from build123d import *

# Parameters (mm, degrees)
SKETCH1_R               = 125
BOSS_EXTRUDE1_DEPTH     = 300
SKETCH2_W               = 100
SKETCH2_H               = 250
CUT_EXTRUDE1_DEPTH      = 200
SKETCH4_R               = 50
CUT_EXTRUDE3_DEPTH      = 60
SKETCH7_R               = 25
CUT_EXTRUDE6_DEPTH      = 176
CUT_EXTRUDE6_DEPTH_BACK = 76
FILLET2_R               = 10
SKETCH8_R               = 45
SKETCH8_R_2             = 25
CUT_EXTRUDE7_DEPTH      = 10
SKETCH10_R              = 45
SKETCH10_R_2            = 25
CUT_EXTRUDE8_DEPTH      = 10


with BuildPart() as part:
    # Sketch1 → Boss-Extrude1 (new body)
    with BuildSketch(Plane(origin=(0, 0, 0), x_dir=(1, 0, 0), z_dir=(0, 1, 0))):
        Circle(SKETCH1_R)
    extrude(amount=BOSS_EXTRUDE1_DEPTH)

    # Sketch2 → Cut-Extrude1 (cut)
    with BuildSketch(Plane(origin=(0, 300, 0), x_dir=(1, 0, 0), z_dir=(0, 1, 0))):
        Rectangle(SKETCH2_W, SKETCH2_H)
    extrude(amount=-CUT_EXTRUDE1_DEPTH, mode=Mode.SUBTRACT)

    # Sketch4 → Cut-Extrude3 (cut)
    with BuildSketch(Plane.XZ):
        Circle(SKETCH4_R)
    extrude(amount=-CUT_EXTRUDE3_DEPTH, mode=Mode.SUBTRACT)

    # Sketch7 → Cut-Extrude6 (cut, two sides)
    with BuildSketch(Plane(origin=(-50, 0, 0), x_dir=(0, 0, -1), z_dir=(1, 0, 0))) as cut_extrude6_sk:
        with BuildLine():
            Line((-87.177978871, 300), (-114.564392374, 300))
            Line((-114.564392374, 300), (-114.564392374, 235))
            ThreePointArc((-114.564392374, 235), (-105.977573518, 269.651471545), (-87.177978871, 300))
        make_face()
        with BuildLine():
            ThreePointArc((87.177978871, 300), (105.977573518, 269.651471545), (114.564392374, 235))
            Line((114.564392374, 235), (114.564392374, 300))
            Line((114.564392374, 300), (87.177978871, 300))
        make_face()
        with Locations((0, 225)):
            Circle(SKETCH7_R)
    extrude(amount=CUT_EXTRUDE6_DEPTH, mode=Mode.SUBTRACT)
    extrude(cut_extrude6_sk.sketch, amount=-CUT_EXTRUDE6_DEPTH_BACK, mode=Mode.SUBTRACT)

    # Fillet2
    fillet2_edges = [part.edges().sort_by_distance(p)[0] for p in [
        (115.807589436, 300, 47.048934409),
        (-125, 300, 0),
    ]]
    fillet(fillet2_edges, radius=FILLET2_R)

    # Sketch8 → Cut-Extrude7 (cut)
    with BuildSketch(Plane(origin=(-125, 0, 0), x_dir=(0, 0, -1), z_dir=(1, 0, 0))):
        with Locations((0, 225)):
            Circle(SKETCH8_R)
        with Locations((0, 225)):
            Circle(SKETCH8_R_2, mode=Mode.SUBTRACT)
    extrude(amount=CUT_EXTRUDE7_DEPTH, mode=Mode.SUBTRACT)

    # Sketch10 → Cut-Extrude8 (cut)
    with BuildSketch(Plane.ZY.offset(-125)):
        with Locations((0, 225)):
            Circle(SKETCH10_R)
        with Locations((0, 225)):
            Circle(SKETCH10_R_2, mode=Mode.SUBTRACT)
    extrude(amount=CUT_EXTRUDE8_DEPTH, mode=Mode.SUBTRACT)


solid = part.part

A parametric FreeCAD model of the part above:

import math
import FreeCAD as App
import Part
import Sketcher


def edges_at(feature, points):
    """Names of the edges that pass closest to the given points."""
    edges = feature.Shape.Edges
    near = lambda p: min(range(len(edges)), key=lambda i: edges[i].distToShape(Part.Vertex(*p))[0])
    return sorted({f"Edge{near(p) + 1}" for p in points})

doc = App.newDocument("Part")
body = doc.addObject("PartDesign::Body", "Body")

# Sketch on XZ plane
sketch1 = doc.addObject("Sketcher::SketchObject", "Sketch")
body.addObject(sketch1)
sketch1.AttachmentSupport = (doc.XZ_Plane, [""])
sketch1.MapMode = "FlatFace"
sketch1.addGeometry(Part.Circle(App.Vector(0, 0, 0), App.Vector(0, 0, 1), 125), False)
sketch1.addConstraint(Sketcher.Constraint("Coincident", 0, 3, -1, 1))
sketch1.addConstraint(Sketcher.Constraint("Diameter", 0, 250.0))
pad1 = doc.addObject("PartDesign::Pad", "Pad")
body.addObject(pad1)
pad1.Profile = sketch1
pad1.Length = 300
pad1.Reversed = True

# Sketch on XZ plane
sketch2 = doc.addObject("Sketcher::SketchObject", "Sketch001")
body.addObject(sketch2)
sketch2.AttachmentSupport = (doc.XZ_Plane, [""])
sketch2.MapMode = "FlatFace"
sketch2.AttachmentOffset = App.Placement(App.Vector(0, 0, -300), App.Rotation())
sketch2.addGeometry(Part.LineSegment(App.Vector(-50, -125, 0), App.Vector(-50, 125, 0)), False)
sketch2.addGeometry(Part.LineSegment(App.Vector(-50, 125, 0), App.Vector(50, 125, 0)), False)
sketch2.addGeometry(Part.LineSegment(App.Vector(50, 125, 0), App.Vector(50, -125, 0)), False)
sketch2.addGeometry(Part.LineSegment(App.Vector(50, -125, 0), App.Vector(-50, -125, 0)), False)
sketch2.addConstraint(Sketcher.Constraint("Coincident", 0, 2, 1, 1))
sketch2.addConstraint(Sketcher.Constraint("Coincident", 1, 2, 2, 1))
sketch2.addConstraint(Sketcher.Constraint("Coincident", 2, 2, 3, 1))
sketch2.addConstraint(Sketcher.Constraint("Coincident", 3, 2, 0, 1))
sketch2.addConstraint(Sketcher.Constraint("Vertical", 0))
sketch2.addConstraint(Sketcher.Constraint("Horizontal", 1))
sketch2.addConstraint(Sketcher.Constraint("Vertical", 2))
sketch2.addConstraint(Sketcher.Constraint("Horizontal", 3))
sketch2.addConstraint(Sketcher.Constraint("Symmetric", 0, 2, 2, 2, -1, 1))
sketch2.addConstraint(Sketcher.Constraint("DistanceX", 1, 1, 1, 2, 100.0))
sketch2.addConstraint(Sketcher.Constraint("DistanceY", 0, 1, 0, 2, 250.0))
pocket1 = doc.addObject("PartDesign::Pocket", "Pocket")
body.addObject(pocket1)
pocket1.Profile = sketch2
pocket1.Length = 200
pocket1.Reversed = True

# Sketch on XZ plane
sketch3 = doc.addObject("Sketcher::SketchObject", "Sketch002")
body.addObject(sketch3)
sketch3.AttachmentSupport = (doc.XZ_Plane, [""])
sketch3.MapMode = "FlatFace"
sketch3.addGeometry(Part.Circle(App.Vector(0, 0, 0), App.Vector(0, 0, 1), 50), False)
sketch3.addConstraint(Sketcher.Constraint("Coincident", 0, 3, -1, 1))
sketch3.addConstraint(Sketcher.Constraint("Diameter", 0, 100.0))
pocket2 = doc.addObject("PartDesign::Pocket", "Pocket001")
body.addObject(pocket2)
pocket2.Profile = sketch3
pocket2.Length = 60

# Sketch on YZ plane
sketch4 = doc.addObject("Sketcher::SketchObject", "Sketch003")
body.addObject(sketch4)
sketch4.AttachmentSupport = (doc.YZ_Plane, [""])
sketch4.MapMode = "FlatFace"
sketch4.AttachmentOffset = App.Placement(App.Vector(0, 0, -50), App.Rotation())
sketch4.addGeometry(Part.LineSegment(App.Vector(300, 87, 0), App.Vector(300, 115, 0)), False)
sketch4.addGeometry(Part.LineSegment(App.Vector(300, 115, 0), App.Vector(235, 115, 0)), False)
sketch4.addGeometry(Part.ArcOfCircle(Part.Circle(App.Vector(225, 0, 0), App.Vector(0, 0, 1), 115), math.radians(49), math.radians(85)), False)
sketch4.addGeometry(Part.ArcOfCircle(Part.Circle(App.Vector(225, 0, 0), App.Vector(0, 0, 1), 115), math.radians(-85), math.radians(-49)), False)
sketch4.addGeometry(Part.LineSegment(App.Vector(235, -115, 0), App.Vector(300, -115, 0)), False)
sketch4.addGeometry(Part.LineSegment(App.Vector(300, -115, 0), App.Vector(300, -87, 0)), False)
sketch4.addGeometry(Part.Circle(App.Vector(225, 0, 0), App.Vector(0, 0, 1), 25), False)
sketch4.addConstraint(Sketcher.Constraint("Coincident", 0, 2, 1, 1))
sketch4.addConstraint(Sketcher.Constraint("Coincident", 1, 2, 2, 2))
sketch4.addConstraint(Sketcher.Constraint("Coincident", 2, 1, 0, 1))
sketch4.addConstraint(Sketcher.Constraint("Coincident", 3, 1, 4, 1))
sketch4.addConstraint(Sketcher.Constraint("Coincident", 4, 2, 5, 1))
sketch4.addConstraint(Sketcher.Constraint("Coincident", 5, 2, 3, 2))
sketch4.addConstraint(Sketcher.Constraint("Vertical", 0))
sketch4.addConstraint(Sketcher.Constraint("Horizontal", 1))
sketch4.addConstraint(Sketcher.Constraint("Horizontal", 4))
sketch4.addConstraint(Sketcher.Constraint("Vertical", 5))
sketch4.addConstraint(Sketcher.Constraint("Coincident", 3, 3, 2, 3))
sketch4.addConstraint(Sketcher.Constraint("Coincident", 6, 3, 2, 3))
sketch4.addConstraint(Sketcher.Constraint("Equal", 2, 3))
sketch4.addConstraint(Sketcher.Constraint("Symmetric", 1, 2, 3, 1, -1))
sketch4.addConstraint(Sketcher.Constraint("Vertical", 2, 1, 4, 2))
sketch4.addConstraint(Sketcher.Constraint("Diameter", 6, 50.0))
sketch4.addConstraint(Sketcher.Constraint("Radius", 2, 115.0))
sketch4.addConstraint(Sketcher.Constraint("DistanceX", 1, 2, 1, 1, 65.0))
sketch4.addConstraint(Sketcher.Constraint("DistanceX", -1, 1, 2, 3, 225.0))
sketch4.addConstraint(Sketcher.Constraint("DistanceX", -1, 1, 0, 2, 300.0))
pocket3 = doc.addObject("PartDesign::Pocket", "Pocket002")
body.addObject(pocket3)
pocket3.Profile = sketch4
pocket3.Type = "ThroughAll"
pocket3.Midplane = True
doc.recompute()

fillet = doc.addObject("PartDesign::Fillet", "Fillet")
body.addObject(fillet)
fillet.Base = (pocket3, edges_at(pocket3, [(115.808, 300, 47.049), (-125, 300, 0)]))
fillet.Radius = 10

# Sketch on YZ plane
sketch5 = doc.addObject("Sketcher::SketchObject", "Sketch004")
body.addObject(sketch5)
sketch5.AttachmentSupport = (doc.YZ_Plane, [""])
sketch5.MapMode = "FlatFace"
sketch5.AttachmentOffset = App.Placement(App.Vector(0, 0, -125), App.Rotation())
sketch5.addGeometry(Part.Circle(App.Vector(225, 0, 0), App.Vector(0, 0, 1), 45), False)
sketch5.addGeometry(Part.Circle(App.Vector(225, 0, 0), App.Vector(0, 0, 1), 25), False)
sketch5.addConstraint(Sketcher.Constraint("Coincident", 1, 3, 0, 3))
sketch5.addConstraint(Sketcher.Constraint("PointOnObject", 0, 3, -1))
sketch5.addConstraint(Sketcher.Constraint("Diameter", 0, 90.0))
sketch5.addConstraint(Sketcher.Constraint("Diameter", 1, 50.0))
sketch5.addConstraint(Sketcher.Constraint("DistanceX", -1, 1, 0, 3, 225.0))
pocket4 = doc.addObject("PartDesign::Pocket", "Pocket003")
body.addObject(pocket4)
pocket4.Profile = sketch5
pocket4.Length = 10
pocket4.Reversed = True

# Sketch on YZ plane
sketch6 = doc.addObject("Sketcher::SketchObject", "Sketch005")
body.addObject(sketch6)
sketch6.AttachmentSupport = (doc.YZ_Plane, [""])
sketch6.MapMode = "FlatFace"
sketch6.AttachmentOffset = App.Placement(App.Vector(0, 0, 125), App.Rotation())
sketch6.addGeometry(Part.Circle(App.Vector(225, 0, 0), App.Vector(0, 0, 1), 45), False)
sketch6.addGeometry(Part.Circle(App.Vector(225, 0, 0), App.Vector(0, 0, 1), 25), False)
sketch6.addConstraint(Sketcher.Constraint("Coincident", 1, 3, 0, 3))
sketch6.addConstraint(Sketcher.Constraint("PointOnObject", 0, 3, -1))
sketch6.addConstraint(Sketcher.Constraint("Diameter", 0, 90.0))
sketch6.addConstraint(Sketcher.Constraint("Diameter", 1, 50.0))
sketch6.addConstraint(Sketcher.Constraint("DistanceX", -1, 1, 0, 3, 225.0))
pocket5 = doc.addObject("PartDesign::Pocket", "Pocket004")
body.addObject(pocket5)
pocket5.Profile = sketch6
pocket5.Length = 10

doc.recompute()
